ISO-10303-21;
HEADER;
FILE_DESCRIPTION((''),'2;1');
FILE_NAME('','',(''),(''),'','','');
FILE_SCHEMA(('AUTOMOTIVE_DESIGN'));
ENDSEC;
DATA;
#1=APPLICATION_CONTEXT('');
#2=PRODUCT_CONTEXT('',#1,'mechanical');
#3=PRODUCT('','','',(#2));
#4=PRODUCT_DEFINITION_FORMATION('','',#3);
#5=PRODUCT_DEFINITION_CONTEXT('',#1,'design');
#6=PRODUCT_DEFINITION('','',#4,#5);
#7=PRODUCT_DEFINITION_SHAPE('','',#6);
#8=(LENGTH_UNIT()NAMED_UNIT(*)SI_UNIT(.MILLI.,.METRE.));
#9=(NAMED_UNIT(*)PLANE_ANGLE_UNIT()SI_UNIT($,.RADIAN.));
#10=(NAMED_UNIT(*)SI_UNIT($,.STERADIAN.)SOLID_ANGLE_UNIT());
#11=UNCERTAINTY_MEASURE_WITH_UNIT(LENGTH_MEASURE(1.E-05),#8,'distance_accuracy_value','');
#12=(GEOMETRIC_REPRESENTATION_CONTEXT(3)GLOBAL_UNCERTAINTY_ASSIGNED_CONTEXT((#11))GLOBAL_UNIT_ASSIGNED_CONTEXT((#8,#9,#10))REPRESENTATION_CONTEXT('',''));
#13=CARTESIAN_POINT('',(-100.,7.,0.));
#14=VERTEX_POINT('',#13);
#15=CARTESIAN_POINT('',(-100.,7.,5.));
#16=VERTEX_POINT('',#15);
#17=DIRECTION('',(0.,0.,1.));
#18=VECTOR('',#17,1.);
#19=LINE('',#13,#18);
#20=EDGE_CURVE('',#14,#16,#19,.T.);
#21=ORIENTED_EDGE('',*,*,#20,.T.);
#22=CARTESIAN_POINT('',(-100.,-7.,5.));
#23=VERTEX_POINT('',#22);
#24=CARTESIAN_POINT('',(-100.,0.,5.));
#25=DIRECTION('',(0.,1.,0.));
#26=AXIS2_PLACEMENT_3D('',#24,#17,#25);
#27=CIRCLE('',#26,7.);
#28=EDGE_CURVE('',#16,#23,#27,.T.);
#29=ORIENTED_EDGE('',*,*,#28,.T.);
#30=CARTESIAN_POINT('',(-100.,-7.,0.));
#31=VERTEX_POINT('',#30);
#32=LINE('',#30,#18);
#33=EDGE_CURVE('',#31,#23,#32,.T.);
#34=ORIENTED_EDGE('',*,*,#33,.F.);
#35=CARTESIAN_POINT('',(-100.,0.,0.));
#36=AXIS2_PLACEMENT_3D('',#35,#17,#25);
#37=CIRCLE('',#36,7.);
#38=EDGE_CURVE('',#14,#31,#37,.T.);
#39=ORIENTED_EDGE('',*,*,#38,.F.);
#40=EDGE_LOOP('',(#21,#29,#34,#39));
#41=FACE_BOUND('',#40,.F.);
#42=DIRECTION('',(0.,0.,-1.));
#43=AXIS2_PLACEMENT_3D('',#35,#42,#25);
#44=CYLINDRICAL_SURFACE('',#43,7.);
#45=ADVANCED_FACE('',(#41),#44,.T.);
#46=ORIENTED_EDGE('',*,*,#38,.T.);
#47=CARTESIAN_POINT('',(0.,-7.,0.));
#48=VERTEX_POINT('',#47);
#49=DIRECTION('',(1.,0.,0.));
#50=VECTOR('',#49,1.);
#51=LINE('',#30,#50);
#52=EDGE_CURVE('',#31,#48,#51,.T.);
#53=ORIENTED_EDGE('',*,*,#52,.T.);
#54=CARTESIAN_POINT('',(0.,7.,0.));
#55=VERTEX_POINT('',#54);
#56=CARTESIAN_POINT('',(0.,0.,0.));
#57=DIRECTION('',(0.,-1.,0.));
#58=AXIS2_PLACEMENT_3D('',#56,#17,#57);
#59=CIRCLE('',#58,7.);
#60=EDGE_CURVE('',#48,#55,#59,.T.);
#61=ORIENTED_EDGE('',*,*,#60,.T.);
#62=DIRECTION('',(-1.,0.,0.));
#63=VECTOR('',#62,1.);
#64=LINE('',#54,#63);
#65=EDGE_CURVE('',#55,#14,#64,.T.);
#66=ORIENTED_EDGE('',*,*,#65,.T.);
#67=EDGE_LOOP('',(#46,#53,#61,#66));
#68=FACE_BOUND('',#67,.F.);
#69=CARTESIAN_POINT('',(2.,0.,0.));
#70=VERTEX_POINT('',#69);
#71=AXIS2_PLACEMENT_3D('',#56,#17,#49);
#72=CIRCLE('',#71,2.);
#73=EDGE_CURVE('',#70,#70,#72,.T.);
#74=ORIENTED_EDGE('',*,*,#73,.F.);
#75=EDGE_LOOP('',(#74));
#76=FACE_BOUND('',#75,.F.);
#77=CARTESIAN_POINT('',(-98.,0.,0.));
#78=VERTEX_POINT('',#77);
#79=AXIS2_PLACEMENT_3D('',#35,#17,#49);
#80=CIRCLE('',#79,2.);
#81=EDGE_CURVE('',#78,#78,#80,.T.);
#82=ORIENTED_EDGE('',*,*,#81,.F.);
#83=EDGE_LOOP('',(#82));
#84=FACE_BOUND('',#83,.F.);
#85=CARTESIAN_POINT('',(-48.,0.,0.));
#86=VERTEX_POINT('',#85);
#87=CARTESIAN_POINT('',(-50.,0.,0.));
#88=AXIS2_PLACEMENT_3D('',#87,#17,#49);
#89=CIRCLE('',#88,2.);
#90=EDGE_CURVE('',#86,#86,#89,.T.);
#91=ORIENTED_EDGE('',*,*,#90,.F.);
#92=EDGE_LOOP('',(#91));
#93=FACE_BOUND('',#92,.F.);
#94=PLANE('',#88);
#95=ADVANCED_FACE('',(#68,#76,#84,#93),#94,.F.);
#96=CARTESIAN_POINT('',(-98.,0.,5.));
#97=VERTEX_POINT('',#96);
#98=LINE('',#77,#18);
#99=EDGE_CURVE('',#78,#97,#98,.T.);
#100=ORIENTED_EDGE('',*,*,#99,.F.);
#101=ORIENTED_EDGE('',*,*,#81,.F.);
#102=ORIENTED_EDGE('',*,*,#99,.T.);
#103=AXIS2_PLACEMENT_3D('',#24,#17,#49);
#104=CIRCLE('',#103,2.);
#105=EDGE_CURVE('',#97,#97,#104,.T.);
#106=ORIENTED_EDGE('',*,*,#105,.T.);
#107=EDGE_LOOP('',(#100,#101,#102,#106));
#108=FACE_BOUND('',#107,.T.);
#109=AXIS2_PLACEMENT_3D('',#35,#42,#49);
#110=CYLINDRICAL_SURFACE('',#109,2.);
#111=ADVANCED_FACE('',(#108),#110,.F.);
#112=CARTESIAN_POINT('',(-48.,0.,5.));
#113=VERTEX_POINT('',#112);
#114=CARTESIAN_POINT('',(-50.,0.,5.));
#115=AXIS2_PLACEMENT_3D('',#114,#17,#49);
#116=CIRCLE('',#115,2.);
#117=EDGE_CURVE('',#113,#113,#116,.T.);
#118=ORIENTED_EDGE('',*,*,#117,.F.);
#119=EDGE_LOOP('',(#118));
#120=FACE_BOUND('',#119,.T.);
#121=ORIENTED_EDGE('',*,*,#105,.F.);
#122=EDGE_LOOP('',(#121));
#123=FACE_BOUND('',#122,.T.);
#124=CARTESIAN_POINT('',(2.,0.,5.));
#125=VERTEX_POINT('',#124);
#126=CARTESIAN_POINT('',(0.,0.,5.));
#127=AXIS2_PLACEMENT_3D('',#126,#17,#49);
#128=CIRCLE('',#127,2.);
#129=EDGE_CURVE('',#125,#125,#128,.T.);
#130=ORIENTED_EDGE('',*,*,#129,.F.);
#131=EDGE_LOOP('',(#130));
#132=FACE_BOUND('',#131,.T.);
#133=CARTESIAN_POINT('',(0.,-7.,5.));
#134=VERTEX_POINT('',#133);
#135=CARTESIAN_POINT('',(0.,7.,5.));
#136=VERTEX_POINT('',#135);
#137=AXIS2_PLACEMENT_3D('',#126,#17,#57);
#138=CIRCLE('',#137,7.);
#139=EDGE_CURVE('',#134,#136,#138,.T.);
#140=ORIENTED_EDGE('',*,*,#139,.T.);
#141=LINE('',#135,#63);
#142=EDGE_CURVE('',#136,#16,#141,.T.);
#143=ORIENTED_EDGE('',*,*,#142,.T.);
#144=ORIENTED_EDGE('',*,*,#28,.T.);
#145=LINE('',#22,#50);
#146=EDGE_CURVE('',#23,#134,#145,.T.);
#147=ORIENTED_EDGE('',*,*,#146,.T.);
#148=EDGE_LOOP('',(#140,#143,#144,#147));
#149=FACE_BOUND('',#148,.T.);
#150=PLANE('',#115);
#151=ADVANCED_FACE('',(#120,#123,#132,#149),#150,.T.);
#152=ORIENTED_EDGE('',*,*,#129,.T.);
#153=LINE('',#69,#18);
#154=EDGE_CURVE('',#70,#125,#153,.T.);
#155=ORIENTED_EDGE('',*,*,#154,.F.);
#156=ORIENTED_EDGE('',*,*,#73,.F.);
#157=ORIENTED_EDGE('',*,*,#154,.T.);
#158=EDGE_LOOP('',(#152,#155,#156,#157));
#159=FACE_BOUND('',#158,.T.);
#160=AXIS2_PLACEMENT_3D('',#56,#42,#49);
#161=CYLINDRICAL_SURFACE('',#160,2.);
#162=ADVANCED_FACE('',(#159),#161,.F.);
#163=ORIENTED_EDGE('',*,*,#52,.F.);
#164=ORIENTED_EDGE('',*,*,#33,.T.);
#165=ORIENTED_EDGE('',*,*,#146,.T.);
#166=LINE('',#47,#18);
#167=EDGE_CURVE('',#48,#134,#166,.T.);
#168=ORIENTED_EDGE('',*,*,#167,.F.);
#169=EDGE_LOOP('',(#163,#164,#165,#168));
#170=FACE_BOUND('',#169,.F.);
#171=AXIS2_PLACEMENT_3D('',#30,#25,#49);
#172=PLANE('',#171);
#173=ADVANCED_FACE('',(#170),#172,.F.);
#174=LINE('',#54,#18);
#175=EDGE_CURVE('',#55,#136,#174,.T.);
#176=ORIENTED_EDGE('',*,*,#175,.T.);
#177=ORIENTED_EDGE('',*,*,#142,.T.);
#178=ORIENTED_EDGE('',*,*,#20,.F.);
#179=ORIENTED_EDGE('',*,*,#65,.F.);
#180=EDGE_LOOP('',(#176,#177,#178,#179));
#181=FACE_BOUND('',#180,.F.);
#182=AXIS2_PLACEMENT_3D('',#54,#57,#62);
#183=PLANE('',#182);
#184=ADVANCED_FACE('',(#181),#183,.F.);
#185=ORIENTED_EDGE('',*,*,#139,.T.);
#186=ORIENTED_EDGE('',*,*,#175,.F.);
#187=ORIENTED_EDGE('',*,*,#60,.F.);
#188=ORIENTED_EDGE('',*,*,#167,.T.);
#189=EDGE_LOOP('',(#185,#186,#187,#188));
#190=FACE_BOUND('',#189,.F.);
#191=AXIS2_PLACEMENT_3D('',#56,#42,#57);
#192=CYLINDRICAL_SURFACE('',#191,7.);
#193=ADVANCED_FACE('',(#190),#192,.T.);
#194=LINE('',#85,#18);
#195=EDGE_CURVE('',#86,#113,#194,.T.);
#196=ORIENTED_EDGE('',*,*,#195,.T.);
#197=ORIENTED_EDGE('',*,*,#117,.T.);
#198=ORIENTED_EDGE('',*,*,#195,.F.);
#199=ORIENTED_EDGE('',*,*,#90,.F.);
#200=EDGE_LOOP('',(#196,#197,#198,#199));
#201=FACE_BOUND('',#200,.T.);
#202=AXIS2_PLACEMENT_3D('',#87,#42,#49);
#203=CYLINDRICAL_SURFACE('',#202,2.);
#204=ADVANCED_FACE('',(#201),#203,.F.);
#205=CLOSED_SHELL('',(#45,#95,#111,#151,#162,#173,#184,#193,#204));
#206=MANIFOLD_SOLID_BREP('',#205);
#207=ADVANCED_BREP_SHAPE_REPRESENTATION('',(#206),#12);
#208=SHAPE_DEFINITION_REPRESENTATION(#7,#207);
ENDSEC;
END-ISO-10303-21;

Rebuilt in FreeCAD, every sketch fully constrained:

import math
import FreeCAD as App
import Part
import Sketcher

V = App.Vector
Q = App.Units.Quantity

doc = App.newDocument("Part")
params = doc.addObject("Spreadsheet::Sheet", "Params")
for row, (alias, value) in enumerate([
    ("sketch1_diameter", "4 mm"),
    ("sketch1_radius", "7 mm"),
    ("sketch1_width", "100 mm"),
    ("pad1_length", "5 mm"),
], start=1):
    params.set(f"A{row}", alias)
    params.set(f"B{row}", "=" + value)
    params.setAlias(f"B{row}", alias)

body = doc.addObject("PartDesign::Body", "Body")

sketch1 = body.newObject("Sketcher::SketchObject", "Sketch")
sketch1.AttachmentSupport = (doc.getObject("XY_Plane"), [""])
sketch1.MapMode = "FlatFace"
sketch1.addGeometry([
    Part.ArcOfCircle(Part.Circle(V(0, 0, 0), V(0, 0, 1), 7), math.radians(-90), math.radians(90)),
    Part.LineSegment(V(0, 7, 0), V(-100, 7, 0)),
    Part.ArcOfCircle(Part.Circle(V(-100, 0, 0), V(0, 0, 1), 7), math.radians(90), math.radians(270)),
    Part.LineSegment(V(-100, -7, 0), V(0, -7, 0)),
    Part.Circle(V(-100, 0, 0), V(0, 0, 1), 2),
    Part.Circle(V(-50, 0, 0), V(0, 0, 1), 2),
    Part.Circle(V(0, 0, 0), V(0, 0, 1), 2),
], False)
sketch1.addConstraint([
    Sketcher.Constraint("Tangent", 0, 2, 1, 1),
    Sketcher.Constraint("Tangent", 1, 2, 2, 1),
    Sketcher.Constraint("Tangent", 2, 2, 3, 1),
    Sketcher.Constraint("Tangent", 3, 2, 0, 1),
    Sketcher.Constraint("Horizontal", 1),
    Sketcher.Constraint("Horizontal", 3),
    Sketcher.Constraint("Coincident", 0, 3, -1, 1),
    Sketcher.Constraint("Coincident", 6, 3, -1, 1),
    Sketcher.Constraint("Coincident", 4, 3, 2, 3),
    Sketcher.Constraint("Equal", 4, 5),
    Sketcher.Constraint("Equal", 5, 6),
    Sketcher.Constraint("PointOnObject", 5, 3, -1),
    Sketcher.Constraint("Diameter", 4, Q("4 mm")),
    Sketcher.Constraint("Radius", 0, Q("7 mm")),
    Sketcher.Constraint("DistanceX", 1, 2, 1, 1, Q("100 mm")),
    Sketcher.Constraint("DistanceX", 5, 3, -1, 1, Q("50 mm")),
])
sketch1.setExpression("Constraints[12]", "Params.sketch1_diameter")
sketch1.setExpression("Constraints[13]", "Params.sketch1_radius")
sketch1.setExpression("Constraints[14]", "Params.sketch1_width")
pad1 = body.newObject("PartDesign::Pad", "Pad")
pad1.Profile = sketch1
pad1.setExpression("Length", "Params.pad1_length")

doc.recompute()
